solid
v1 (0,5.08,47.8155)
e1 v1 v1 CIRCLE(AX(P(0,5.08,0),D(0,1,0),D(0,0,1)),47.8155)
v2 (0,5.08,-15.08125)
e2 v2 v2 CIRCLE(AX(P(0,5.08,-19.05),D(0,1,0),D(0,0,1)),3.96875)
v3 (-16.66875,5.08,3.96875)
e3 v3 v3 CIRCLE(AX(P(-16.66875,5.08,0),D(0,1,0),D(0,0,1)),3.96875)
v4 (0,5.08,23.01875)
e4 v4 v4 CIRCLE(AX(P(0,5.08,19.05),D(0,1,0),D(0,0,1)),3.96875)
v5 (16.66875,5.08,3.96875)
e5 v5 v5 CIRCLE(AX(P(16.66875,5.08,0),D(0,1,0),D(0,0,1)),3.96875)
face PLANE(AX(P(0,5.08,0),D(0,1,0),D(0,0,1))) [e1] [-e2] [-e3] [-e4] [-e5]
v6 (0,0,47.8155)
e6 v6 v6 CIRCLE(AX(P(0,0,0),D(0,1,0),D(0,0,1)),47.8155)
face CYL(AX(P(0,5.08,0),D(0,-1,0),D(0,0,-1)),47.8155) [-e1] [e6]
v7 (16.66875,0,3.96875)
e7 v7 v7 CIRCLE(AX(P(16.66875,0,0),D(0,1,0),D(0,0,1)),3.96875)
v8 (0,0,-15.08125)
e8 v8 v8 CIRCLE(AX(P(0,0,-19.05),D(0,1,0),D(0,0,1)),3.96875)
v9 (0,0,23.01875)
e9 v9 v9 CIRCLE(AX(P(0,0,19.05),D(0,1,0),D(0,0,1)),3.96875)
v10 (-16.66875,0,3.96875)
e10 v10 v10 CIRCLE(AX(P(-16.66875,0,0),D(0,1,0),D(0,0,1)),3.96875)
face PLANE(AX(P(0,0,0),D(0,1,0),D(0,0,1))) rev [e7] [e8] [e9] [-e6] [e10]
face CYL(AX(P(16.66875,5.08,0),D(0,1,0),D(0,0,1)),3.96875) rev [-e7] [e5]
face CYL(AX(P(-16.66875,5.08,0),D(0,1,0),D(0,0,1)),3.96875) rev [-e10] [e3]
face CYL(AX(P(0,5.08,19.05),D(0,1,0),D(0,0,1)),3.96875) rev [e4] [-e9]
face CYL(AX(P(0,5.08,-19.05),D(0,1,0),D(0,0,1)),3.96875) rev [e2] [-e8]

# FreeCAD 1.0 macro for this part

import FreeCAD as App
import Part
import Sketcher

V = App.Vector
Q = App.Units.Quantity

doc = App.newDocument("Part")
body = doc.addObject("PartDesign::Body", "Body")

sketch1 = body.newObject("Sketcher::SketchObject", "Sketch")
sketch1.AttachmentSupport = (doc.getObject("XZ_Plane"), [""])
sketch1.MapMode = "FlatFace"
sketch1.addGeometry(Part.Circle(V(0, 0, 0), V(0, 0, 1), 48), False)
sketch1.addConstraint([
    Sketcher.Constraint("Coincident", 0, 3, -1, 1),
    Sketcher.Constraint("Diameter", 0, Q("3.765 in")),
])
pad1 = body.newObject("PartDesign::Pad", "Pad")
pad1.Profile = sketch1
pad1.Length = Q("0.2 in")
pad1.Reversed = True

sketch2 = body.newObject("Sketcher::SketchObject", "Sketch001")
sketch2.AttachmentSupport = (doc.getObject("XZ_Plane"), [""])
sketch2.MapMode = "FlatFace"
sketch2.AttachmentOffset = App.Placement(V(0, 0, -0.2 * 25.4), App.Rotation())
sketch2.addGeometry([
    Part.Circle(V(-16.7, 0, 0), V(0, 0, 1), 4),
    Part.Circle(V(16.7, 0, 0), V(0, 0, 1), 4),
], False)
sketch2.addConstraint([
    Sketcher.Constraint("Equal", 0, 1),
    Sketcher.Constraint("Symmetric", 0, 3, 1, 3, -1, 1),
    Sketcher.Constraint("PointOnObject", 0, 3, -1),
    Sketcher.Constraint("Diameter", 0, Q("0.3125 in")),
    Sketcher.Constraint("DistanceX", 0, 3, -1, 1, Q("0.65625 in")),
])
doc.recompute()
hole = body.newObject("PartDesign::Hole", "Hole")
hole.Profile = sketch2
hole.ThreadType = "None"
hole.Diameter = Q("0.3125 in")
hole.DepthType = "ThroughAll"
hole.Reversed = True

sketch3 = body.newObject("Sketcher::SketchObject", "Sketch002")
sketch3.AttachmentSupport = (doc.getObject("XZ_Plane"), [""])
sketch3.MapMode = "FlatFace"
sketch3.AttachmentOffset = App.Placement(V(0, 0, -0.2 * 25.4), App.Rotation())
sketch3.addGeometry([
    Part.Circle(V(0, -19.1, 0), V(0, 0, 1), 4),
    Part.Circle(V(0, 19.1, 0), V(0, 0, 1), 4),
], False)
sketch3.addConstraint([
    Sketcher.Constraint("Equal", 0, 1),
    Sketcher.Constraint("Symmetric", 0, 3, 1, 3, -1, 1),
    Sketcher.Constraint("PointOnObject", 0, 3, -2),
    Sketcher.Constraint("Diameter", 0, Q("0.3125 in")),
    Sketcher.Constraint("DistanceY", 0, 3, 1, 3, Q("1.5 in")),
])
doc.recompute()
hole2 = body.newObject("PartDesign::Hole", "Hole001")
hole2.Profile = sketch3
hole2.ThreadType = "None"
hole2.Diameter = Q("0.3125 in")
hole2.DepthType = "ThroughAll"
hole2.Reversed = True

doc.recompute()
